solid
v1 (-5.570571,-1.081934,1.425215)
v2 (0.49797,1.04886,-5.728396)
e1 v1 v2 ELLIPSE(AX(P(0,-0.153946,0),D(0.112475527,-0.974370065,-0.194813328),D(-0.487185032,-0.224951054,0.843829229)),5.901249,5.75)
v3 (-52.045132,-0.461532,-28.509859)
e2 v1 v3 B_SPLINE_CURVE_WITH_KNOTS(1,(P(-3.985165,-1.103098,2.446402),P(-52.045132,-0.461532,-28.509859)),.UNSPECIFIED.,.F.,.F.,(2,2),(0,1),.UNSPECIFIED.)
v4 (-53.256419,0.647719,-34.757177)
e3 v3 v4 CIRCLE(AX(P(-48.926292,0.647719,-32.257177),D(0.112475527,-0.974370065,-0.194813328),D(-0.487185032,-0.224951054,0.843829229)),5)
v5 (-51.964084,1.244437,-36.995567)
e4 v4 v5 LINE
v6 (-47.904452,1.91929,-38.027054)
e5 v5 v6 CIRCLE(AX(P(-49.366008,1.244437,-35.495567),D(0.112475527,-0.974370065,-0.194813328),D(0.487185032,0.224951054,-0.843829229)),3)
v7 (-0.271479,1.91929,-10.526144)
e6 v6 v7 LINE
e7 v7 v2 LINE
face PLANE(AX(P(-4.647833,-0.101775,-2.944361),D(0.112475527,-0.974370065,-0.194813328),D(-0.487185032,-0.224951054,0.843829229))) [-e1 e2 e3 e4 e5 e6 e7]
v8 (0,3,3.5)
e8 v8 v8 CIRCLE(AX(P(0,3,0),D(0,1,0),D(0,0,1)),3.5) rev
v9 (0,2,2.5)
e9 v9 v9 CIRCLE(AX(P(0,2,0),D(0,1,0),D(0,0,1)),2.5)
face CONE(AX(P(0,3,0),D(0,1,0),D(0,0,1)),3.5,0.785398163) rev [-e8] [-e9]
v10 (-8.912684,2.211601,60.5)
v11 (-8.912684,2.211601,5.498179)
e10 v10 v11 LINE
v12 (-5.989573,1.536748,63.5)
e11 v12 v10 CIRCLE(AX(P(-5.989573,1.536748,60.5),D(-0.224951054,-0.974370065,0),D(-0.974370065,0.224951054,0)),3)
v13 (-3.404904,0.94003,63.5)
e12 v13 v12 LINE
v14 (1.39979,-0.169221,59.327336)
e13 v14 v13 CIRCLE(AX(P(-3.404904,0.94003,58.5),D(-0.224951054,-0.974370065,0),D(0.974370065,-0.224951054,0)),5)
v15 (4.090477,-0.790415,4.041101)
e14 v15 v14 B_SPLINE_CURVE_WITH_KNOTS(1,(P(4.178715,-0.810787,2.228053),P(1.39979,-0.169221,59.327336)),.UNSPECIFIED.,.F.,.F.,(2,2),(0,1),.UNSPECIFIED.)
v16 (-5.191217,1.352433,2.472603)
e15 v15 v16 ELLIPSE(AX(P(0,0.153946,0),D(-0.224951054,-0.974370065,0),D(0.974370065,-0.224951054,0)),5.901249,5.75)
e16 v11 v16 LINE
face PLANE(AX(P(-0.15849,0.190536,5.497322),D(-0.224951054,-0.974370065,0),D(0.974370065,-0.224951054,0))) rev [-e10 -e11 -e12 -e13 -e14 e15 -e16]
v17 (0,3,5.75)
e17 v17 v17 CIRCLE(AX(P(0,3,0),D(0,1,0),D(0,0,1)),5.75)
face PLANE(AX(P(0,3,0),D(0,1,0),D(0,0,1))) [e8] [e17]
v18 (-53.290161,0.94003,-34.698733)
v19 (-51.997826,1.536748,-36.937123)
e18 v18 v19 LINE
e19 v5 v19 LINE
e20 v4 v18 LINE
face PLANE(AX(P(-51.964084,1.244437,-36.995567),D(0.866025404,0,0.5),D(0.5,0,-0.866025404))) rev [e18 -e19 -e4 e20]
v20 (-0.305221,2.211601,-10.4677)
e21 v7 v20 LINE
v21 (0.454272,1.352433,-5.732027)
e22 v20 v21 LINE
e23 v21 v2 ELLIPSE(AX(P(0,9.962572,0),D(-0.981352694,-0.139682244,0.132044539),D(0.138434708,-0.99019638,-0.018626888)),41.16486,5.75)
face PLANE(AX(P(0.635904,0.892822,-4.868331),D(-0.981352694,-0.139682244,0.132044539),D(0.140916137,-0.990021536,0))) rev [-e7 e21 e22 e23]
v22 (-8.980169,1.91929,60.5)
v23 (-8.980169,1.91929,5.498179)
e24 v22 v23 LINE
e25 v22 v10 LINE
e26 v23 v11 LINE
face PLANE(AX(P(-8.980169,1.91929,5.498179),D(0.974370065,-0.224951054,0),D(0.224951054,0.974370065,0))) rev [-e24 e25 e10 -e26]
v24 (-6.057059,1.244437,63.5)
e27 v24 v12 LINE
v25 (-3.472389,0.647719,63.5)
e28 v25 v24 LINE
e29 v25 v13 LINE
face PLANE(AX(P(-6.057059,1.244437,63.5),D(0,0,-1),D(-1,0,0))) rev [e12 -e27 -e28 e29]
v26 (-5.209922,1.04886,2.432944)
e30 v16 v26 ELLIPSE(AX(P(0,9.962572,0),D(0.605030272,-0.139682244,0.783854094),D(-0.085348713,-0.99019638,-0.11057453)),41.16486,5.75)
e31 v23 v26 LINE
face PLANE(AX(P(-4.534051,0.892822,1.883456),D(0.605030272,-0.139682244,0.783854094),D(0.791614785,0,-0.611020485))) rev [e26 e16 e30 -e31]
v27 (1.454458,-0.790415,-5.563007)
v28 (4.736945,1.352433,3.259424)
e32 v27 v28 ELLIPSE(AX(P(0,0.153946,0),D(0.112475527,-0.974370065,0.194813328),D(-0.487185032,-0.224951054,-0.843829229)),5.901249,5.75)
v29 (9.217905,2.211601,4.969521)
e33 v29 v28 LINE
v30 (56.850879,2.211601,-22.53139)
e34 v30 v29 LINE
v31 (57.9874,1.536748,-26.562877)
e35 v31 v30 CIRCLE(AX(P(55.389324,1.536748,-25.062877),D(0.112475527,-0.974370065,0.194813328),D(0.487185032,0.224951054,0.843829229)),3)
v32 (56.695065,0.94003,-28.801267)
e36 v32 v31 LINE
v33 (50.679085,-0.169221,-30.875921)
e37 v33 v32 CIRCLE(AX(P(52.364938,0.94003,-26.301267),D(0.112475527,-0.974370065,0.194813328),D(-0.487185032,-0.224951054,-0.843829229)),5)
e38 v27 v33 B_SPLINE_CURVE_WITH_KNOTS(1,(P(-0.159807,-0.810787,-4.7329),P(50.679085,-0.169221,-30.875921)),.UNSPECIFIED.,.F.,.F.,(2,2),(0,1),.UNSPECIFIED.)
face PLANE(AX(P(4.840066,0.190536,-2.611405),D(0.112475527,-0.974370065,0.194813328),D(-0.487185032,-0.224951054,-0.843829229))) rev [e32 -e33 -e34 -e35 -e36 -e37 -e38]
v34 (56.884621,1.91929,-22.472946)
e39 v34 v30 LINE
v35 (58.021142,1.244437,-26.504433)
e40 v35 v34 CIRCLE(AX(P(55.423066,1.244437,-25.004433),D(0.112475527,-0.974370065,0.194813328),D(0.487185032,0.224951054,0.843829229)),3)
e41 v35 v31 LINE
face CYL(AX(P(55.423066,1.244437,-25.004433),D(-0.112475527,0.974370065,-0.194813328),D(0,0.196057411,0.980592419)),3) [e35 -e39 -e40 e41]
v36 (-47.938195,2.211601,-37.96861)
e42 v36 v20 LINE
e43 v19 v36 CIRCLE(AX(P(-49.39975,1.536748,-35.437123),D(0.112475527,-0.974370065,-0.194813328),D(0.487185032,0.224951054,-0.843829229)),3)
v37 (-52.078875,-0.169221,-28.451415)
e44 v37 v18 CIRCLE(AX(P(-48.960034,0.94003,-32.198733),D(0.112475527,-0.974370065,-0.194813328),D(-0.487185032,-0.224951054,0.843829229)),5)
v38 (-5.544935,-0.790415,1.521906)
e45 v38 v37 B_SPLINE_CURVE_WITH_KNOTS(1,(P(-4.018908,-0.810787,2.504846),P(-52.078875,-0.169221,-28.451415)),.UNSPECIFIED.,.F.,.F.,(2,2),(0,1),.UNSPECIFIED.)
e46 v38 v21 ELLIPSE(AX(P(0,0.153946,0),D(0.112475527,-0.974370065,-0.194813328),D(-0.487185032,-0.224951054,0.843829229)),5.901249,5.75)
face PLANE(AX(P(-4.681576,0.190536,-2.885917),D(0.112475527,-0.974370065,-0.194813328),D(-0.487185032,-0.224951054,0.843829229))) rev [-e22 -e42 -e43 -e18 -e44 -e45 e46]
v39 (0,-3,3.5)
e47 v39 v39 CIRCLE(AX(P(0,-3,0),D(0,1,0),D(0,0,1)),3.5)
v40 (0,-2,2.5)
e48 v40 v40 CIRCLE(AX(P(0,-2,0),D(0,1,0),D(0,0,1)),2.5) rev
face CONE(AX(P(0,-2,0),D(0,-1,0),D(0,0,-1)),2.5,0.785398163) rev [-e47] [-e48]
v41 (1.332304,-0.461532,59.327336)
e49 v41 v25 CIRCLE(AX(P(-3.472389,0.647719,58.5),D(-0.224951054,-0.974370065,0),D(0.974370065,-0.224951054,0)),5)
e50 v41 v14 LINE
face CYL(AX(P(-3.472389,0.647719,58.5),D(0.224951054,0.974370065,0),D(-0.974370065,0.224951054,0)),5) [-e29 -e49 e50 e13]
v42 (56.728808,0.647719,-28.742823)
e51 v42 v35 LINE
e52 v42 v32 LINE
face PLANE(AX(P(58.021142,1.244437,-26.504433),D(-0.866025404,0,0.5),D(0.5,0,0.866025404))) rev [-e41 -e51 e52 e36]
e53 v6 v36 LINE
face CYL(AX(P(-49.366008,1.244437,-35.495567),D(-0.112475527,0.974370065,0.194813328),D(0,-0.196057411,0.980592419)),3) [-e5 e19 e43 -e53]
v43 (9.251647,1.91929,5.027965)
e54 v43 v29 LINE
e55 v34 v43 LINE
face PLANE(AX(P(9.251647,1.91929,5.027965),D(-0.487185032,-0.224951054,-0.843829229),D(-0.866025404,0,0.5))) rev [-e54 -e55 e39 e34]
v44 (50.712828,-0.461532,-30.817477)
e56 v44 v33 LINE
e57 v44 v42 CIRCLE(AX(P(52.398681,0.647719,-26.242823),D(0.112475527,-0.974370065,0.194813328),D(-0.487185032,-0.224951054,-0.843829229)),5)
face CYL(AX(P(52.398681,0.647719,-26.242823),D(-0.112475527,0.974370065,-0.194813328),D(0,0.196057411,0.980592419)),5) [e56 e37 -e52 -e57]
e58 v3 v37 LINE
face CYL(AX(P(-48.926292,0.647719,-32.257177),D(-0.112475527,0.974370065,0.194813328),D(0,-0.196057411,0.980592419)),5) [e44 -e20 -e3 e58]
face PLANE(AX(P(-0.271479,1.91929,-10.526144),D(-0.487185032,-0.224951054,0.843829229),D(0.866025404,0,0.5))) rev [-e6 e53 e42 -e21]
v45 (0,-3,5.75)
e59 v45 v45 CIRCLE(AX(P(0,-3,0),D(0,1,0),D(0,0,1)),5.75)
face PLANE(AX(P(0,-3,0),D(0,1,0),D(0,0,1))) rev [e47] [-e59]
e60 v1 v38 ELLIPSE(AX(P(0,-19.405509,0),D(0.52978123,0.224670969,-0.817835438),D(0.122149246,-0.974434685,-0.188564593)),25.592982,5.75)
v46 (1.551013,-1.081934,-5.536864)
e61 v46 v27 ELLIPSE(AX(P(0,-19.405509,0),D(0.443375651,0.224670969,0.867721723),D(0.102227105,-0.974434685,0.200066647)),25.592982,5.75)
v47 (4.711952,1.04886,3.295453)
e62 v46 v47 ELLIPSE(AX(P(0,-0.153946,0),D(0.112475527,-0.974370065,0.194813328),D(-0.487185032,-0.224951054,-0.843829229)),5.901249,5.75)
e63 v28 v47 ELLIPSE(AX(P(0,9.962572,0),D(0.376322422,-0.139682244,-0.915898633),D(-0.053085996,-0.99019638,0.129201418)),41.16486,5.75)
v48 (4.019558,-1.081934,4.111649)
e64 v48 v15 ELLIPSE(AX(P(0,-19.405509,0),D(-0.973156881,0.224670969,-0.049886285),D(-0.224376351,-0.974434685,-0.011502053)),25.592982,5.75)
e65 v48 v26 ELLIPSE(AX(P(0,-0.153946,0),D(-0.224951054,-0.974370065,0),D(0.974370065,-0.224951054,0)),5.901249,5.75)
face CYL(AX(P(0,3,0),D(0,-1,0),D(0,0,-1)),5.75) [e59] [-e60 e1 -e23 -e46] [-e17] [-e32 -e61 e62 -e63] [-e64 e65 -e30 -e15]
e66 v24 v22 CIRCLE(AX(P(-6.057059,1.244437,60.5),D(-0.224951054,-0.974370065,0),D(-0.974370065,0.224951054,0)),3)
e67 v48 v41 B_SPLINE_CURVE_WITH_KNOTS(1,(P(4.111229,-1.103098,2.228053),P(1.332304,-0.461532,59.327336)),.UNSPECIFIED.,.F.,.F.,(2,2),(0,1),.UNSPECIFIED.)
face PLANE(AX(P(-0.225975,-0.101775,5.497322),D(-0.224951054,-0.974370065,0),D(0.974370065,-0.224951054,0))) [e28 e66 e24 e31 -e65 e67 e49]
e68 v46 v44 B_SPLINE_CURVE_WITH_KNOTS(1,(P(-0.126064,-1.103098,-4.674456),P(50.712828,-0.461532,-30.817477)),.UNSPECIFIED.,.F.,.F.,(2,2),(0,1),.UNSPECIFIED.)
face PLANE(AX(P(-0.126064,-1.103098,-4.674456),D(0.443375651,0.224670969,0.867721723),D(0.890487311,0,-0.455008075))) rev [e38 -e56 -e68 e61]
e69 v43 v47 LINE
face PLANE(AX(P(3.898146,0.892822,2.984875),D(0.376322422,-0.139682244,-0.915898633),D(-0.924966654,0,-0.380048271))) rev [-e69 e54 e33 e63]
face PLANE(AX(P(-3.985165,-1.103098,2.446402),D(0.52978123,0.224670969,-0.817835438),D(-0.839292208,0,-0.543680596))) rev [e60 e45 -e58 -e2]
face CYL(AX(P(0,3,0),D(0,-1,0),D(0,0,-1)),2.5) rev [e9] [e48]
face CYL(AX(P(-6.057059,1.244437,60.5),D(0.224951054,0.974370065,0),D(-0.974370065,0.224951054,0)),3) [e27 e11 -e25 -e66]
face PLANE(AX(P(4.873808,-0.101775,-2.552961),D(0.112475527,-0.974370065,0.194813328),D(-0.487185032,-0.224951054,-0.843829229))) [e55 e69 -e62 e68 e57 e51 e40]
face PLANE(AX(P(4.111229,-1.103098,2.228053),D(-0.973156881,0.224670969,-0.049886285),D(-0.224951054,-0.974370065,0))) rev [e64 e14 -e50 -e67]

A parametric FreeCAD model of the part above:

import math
import FreeCAD as App
import Part
import Sketcher

V = App.Vector


def edges_at(feature, points):
    """Names of the edges that pass closest to the given points."""
    edges = feature.Shape.Edges
    near = lambda p: min(range(len(edges)), key=lambda i: edges[i].distToShape(Part.Vertex(*p))[0])
    return sorted({f"Edge{near(p) + 1}" for p in points})

doc = App.newDocument("Part")
body = doc.addObject("PartDesign::Body", "Body")

# Sketch on XZ plane
sketch1 = doc.addObject("Sketcher::SketchObject", "Sketch")
body.addObject(sketch1)
sketch1.AttachmentSupport = (doc.XZ_Plane, [""])
sketch1.MapMode = "FlatFace"
sketch1.addGeometry(Part.Circle(V(0, 0, 0), V(0, 0, 1), 6), False)
sketch1.addConstraint([
    Sketcher.Constraint("Coincident", 0, 3, -1, 1),
    Sketcher.Constraint("Diameter", 0, 11.5),
])
pad1 = doc.addObject("PartDesign::Pad", "Pad")
body.addObject(pad1)
pad1.Profile = sketch1
pad1.Length = 6
pad1.Midplane = True

# Sketch on an angled plane
sketch2 = doc.addObject("Sketcher::SketchObject", "Sketch001")
body.addObject(sketch2)
sketch2.Placement = App.Placement(V(0, 0, 0), App.Rotation(V(0.974370065, -0.224951054, 0), V(0, 0, 1), V(-0.224951054, -0.974370065, 0), "ZXY"))
sketch2.addGeometry([
    Part.LineSegment(V(-9.181754, 5.498179, 0), V(-4.618684, 1.883456, 0)),  # 0
    Part.BSplineCurve([V(-4.618684, 1.883456, 0), V(-0.212237, 8.93889, 0), V(4.254002, 2.228053, 0)], [3, 3], [0, 1], False, 2, [1, 1, 1], False),  # 1
    Part.BSplineCurve([V(1.40198, 59.327336, 0), V(4.254002, 2.228053, 0)], [2, 2], [0, 1], False, 1, [1, 1], False),  # 2
    Part.ArcOfCircle(Part.Circle(V(-3.529097, 58.5, 0), V(0, 0, 1), 5), math.radians(9.524375), math.radians(90)),  # 3
    Part.LineSegment(V(-3.529097, 63.5, 0), V(-6.181754, 63.5, 0)),  # 4
    Part.ArcOfCircle(Part.Circle(V(-6.181754, 60.5, 0), V(0, 0, 1), 3), math.radians(90), math.radians(180)),  # 5
    Part.LineSegment(V(-9.181754, 60.5, 0), V(-9.181754, 5.498179, 0)),  # 6
], False)
sketch2.addConstraint([
    Sketcher.Constraint("Block", 1),
    Sketcher.Constraint("Block", 2),
    Sketcher.Constraint("Coincident", 0, 2, 1, 1),
    Sketcher.Constraint("Coincident", 2, 1, 3, 1),
    Sketcher.Constraint("Tangent", 3, 2, 4, 1),
    Sketcher.Constraint("Tangent", 4, 2, 5, 1),
    Sketcher.Constraint("Tangent", 5, 2, 6, 1),
    Sketcher.Constraint("Coincident", 6, 2, 0, 1),
    Sketcher.Constraint("Horizontal", 4),
    Sketcher.Constraint("Vertical", 6),
    Sketcher.Constraint("Radius", 3, 5.0),
    Sketcher.Constraint("Radius", 5, 3.0),
    Sketcher.Constraint("DistanceY", -1, 1, 3, 3, 58.5),
    Sketcher.Constraint("DistanceY", 6, 2, 6, 1, 55.001821),
    Sketcher.Constraint("DistanceX", 4, 2, 4, 1, 2.652657),
])
pad2 = doc.addObject("PartDesign::Pad", "Pad001")
body.addObject(pad2)
pad2.Profile = sketch2
pad2.Length = 0.3
pad2.Midplane = True

# Sketch on XZ plane
sketch3 = doc.addObject("Sketcher::SketchObject", "Sketch002")
body.addObject(sketch3)
sketch3.AttachmentSupport = (doc.XZ_Plane, [""])
sketch3.MapMode = "FlatFace"
sketch3.AttachmentOffset = App.Placement(V(0, 0, 3), App.Rotation())
sketch3.addGeometry(Part.Circle(V(0, 0, 0), V(0, 0, 1), 2.5), False)
sketch3.addConstraint([
    Sketcher.Constraint("Coincident", 0, 3, -1, 1),
    Sketcher.Constraint("Diameter", 0, 5.0),
])
pocket1 = doc.addObject("PartDesign::Pocket", "Pocket")
body.addObject(pocket1)
pocket1.Profile = sketch3
pocket1.Type = "ThroughAll"
doc.recompute()

polarpattern = doc.addObject("PartDesign::PolarPattern", "PolarPattern")
body.addObject(polarpattern)
polarpattern.Originals = [pad2]
polarpattern.Axis = (doc.Y_Axis, [""])
polarpattern.Angle = 360
polarpattern.Occurrences = 3
body.Tip = polarpattern
doc.recompute()

chamfer = doc.addObject("PartDesign::Chamfer", "Chamfer")
body.addObject(chamfer)
chamfer.Base = (polarpattern, edges_at(polarpattern, [(-2.5, 3, 0), (-2.5, -3, 0)]))
chamfer.Size = 1

doc.recompute()
